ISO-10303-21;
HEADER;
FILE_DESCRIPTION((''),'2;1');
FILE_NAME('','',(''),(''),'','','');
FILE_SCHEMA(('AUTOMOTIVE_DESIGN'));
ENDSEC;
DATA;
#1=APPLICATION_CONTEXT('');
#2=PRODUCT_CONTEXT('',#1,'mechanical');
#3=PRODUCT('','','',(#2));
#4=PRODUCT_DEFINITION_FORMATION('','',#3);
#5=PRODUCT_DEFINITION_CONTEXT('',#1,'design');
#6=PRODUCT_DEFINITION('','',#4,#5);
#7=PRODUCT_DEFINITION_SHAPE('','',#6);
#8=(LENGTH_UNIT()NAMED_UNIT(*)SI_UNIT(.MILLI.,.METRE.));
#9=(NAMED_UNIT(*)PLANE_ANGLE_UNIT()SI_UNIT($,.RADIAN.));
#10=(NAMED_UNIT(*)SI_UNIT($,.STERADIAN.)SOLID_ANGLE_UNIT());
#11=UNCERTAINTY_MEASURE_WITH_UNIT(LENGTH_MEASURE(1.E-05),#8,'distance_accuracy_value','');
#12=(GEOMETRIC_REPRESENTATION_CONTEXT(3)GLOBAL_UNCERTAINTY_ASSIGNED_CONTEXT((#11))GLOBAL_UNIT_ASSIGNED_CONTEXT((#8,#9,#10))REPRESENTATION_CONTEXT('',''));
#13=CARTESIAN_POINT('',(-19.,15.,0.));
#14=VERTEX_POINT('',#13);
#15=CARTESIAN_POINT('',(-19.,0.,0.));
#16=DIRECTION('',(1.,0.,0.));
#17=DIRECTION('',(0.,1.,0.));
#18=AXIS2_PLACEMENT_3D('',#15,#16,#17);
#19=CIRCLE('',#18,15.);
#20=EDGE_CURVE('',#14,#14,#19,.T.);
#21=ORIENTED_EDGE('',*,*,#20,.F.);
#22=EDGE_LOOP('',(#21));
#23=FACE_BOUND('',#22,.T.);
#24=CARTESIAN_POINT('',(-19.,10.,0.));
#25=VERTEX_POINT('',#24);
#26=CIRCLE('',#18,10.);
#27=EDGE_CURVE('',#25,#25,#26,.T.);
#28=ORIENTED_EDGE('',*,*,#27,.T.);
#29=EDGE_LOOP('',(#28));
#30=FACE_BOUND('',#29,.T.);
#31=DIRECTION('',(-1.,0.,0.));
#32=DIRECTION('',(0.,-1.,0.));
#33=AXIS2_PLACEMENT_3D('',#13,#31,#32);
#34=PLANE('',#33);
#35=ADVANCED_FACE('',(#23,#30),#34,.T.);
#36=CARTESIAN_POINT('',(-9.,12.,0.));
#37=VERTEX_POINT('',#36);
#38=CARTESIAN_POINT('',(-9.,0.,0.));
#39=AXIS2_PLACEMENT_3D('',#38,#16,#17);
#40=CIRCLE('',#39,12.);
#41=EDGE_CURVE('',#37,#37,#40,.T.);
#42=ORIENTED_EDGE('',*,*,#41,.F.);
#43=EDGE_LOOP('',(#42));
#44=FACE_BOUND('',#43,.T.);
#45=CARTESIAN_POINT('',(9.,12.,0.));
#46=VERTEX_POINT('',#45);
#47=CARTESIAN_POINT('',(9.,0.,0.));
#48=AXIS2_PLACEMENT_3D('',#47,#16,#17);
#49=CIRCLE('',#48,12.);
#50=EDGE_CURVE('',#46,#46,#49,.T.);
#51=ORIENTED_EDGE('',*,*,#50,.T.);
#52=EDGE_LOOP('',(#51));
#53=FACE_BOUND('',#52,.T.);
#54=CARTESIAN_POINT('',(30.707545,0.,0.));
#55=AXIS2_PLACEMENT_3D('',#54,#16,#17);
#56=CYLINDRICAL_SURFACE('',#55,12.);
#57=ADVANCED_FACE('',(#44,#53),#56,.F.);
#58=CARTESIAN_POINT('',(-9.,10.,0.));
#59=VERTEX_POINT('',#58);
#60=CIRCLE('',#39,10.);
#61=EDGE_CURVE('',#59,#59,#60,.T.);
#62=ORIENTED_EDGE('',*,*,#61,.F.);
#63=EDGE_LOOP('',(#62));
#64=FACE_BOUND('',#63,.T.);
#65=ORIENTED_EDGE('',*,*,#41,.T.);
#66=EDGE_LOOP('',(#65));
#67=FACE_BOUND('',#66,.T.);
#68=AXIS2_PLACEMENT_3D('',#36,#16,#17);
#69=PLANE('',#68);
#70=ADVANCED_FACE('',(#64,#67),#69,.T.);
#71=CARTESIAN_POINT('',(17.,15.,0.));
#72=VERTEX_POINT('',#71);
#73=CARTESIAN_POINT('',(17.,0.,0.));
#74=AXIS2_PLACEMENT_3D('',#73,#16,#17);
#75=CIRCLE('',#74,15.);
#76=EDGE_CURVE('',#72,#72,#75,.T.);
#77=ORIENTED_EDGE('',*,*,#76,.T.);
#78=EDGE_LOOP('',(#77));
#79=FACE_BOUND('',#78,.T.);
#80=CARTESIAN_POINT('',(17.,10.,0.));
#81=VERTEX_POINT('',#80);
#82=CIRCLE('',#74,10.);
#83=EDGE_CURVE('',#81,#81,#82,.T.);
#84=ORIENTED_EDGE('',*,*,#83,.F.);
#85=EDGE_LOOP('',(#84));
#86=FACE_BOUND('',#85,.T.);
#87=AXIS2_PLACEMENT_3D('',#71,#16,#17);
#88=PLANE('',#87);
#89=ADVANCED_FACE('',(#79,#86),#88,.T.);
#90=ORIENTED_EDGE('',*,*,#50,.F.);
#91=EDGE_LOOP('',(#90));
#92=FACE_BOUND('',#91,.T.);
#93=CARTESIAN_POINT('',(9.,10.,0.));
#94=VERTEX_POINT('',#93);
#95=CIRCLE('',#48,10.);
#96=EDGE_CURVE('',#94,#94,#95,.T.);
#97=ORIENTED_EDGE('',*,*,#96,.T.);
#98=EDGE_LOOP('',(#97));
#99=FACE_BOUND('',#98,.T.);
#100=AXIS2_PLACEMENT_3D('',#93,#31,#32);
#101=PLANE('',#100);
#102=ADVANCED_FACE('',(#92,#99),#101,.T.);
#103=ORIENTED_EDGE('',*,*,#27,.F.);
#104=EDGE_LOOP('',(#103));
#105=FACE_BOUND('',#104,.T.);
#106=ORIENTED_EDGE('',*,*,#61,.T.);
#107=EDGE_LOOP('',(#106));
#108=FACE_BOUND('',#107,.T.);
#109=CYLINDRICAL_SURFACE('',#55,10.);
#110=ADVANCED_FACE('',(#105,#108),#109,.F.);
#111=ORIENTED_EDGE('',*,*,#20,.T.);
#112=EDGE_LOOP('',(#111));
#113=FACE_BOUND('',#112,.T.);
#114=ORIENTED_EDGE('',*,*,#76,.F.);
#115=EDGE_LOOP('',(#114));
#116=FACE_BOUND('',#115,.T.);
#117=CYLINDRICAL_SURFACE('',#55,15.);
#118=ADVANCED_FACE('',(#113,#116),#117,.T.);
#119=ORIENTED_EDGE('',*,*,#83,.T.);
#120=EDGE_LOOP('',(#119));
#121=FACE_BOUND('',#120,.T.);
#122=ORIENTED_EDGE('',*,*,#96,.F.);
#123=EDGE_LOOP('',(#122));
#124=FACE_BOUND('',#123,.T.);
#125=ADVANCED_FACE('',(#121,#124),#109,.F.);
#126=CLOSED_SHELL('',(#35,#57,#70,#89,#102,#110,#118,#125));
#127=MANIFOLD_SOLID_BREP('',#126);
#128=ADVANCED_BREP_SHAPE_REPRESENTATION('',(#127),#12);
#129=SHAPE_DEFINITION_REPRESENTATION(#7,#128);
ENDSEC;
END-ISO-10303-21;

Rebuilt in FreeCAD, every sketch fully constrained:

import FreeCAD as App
import Part
import Sketcher

doc = App.newDocument("Part")
params = doc.addObject("Spreadsheet::Sheet", "Params")
for row, (alias, value) in enumerate([
    ("sketch1_width", "36 mm"),
    ("sketch1_width2", "10 mm"),
    ("sketch1_width3", "18 mm"),
    ("sketch1_height", "5 mm"),
    ("sketch1_height2", "2 mm"),
    ("revolution_angle", "360 deg"),
], start=1):
    params.set(f"A{row}", alias)
    params.set(f"B{row}", "=" + value)
    params.setAlias(f"B{row}", alias)

body = doc.addObject("PartDesign::Body", "Body")

sketch1 = doc.addObject("Sketcher::SketchObject", "Sketch")
body.addObject(sketch1)
sketch1.AttachmentSupport = (doc.XY_Plane, [""])
sketch1.MapMode = "FlatFace"
sketch1.addGeometry(Part.LineSegment(App.Vector(17, 15, 0), App.Vector(-19, 15, 0)), False)
sketch1.addGeometry(Part.LineSegment(App.Vector(-19, 15, 0), App.Vector(-19, 10, 0)), False)
sketch1.addGeometry(Part.LineSegment(App.Vector(-19, 10, 0), App.Vector(-9, 10, 0)), False)
sketch1.addGeometry(Part.LineSegment(App.Vector(-9, 10, 0), App.Vector(-9, 12, 0)), False)
sketch1.addGeometry(Part.LineSegment(App.Vector(-9, 12, 0), App.Vector(9, 12, 0)), False)
sketch1.addGeometry(Part.LineSegment(App.Vector(9, 12, 0), App.Vector(9, 10, 0)), False)
sketch1.addGeometry(Part.LineSegment(App.Vector(9, 10, 0), App.Vector(17, 10, 0)), False)
sketch1.addGeometry(Part.LineSegment(App.Vector(17, 10, 0), App.Vector(17, 15, 0)), False)
sketch1.addConstraint(Sketcher.Constraint("Coincident", 0, 2, 1, 1))
sketch1.addConstraint(Sketcher.Constraint("Coincident", 1, 2, 2, 1))
sketch1.addConstraint(Sketcher.Constraint("Coincident", 2, 2, 3, 1))
sketch1.addConstraint(Sketcher.Constraint("Coincident", 3, 2, 4, 1))
sketch1.addConstraint(Sketcher.Constraint("Coincident", 4, 2, 5, 1))
sketch1.addConstraint(Sketcher.Constraint("Coincident", 5, 2, 6, 1))
sketch1.addConstraint(Sketcher.Constraint("Coincident", 6, 2, 7, 1))
sketch1.addConstraint(Sketcher.Constraint("Coincident", 7, 2, 0, 1))
sketch1.addConstraint(Sketcher.Constraint("Horizontal", 0))
sketch1.addConstraint(Sketcher.Constraint("Vertical", 1))
sketch1.addConstraint(Sketcher.Constraint("Horizontal", 2))
sketch1.addConstraint(Sketcher.Constraint("Vertical", 3))
sketch1.addConstraint(Sketcher.Constraint("Horizontal", 4))
sketch1.addConstraint(Sketcher.Constraint("Vertical", 5))
sketch1.addConstraint(Sketcher.Constraint("Horizontal", 6))
sketch1.addConstraint(Sketcher.Constraint("Vertical", 7))
sketch1.addConstraint(Sketcher.Constraint("Symmetric", 2, 2, 5, 2, -2))
sketch1.addConstraint(Sketcher.Constraint("DistanceX", 0, 2, 0, 1, 36.0))
sketch1.addConstraint(Sketcher.Constraint("DistanceX", 2, 1, 2, 2, 10.0))
sketch1.addConstraint(Sketcher.Constraint("DistanceX", 4, 1, 4, 2, 18.0))
sketch1.addConstraint(Sketcher.Constraint("DistanceY", 1, 2, 1, 1, 5.0))
sketch1.addConstraint(Sketcher.Constraint("DistanceY", 3, 1, 3, 2, 2.0))
sketch1.addConstraint(Sketcher.Constraint("DistanceY", -1, 1, 0, 2, 15.0))
sketch1.setExpression("Constraints[17]", "Params.sketch1_width")
sketch1.setExpression("Constraints[18]", "Params.sketch1_width2")
sketch1.setExpression("Constraints[19]", "Params.sketch1_width3")
sketch1.setExpression("Constraints[20]", "Params.sketch1_height")
sketch1.setExpression("Constraints[21]", "Params.sketch1_height2")
revolution = doc.addObject("PartDesign::Revolution", "Revolution")
body.addObject(revolution)
revolution.Profile = sketch1
revolution.ReferenceAxis = (sketch1, ["H_Axis"])
revolution.setExpression("Angle", "Params.revolution_angle")

doc.recompute()
